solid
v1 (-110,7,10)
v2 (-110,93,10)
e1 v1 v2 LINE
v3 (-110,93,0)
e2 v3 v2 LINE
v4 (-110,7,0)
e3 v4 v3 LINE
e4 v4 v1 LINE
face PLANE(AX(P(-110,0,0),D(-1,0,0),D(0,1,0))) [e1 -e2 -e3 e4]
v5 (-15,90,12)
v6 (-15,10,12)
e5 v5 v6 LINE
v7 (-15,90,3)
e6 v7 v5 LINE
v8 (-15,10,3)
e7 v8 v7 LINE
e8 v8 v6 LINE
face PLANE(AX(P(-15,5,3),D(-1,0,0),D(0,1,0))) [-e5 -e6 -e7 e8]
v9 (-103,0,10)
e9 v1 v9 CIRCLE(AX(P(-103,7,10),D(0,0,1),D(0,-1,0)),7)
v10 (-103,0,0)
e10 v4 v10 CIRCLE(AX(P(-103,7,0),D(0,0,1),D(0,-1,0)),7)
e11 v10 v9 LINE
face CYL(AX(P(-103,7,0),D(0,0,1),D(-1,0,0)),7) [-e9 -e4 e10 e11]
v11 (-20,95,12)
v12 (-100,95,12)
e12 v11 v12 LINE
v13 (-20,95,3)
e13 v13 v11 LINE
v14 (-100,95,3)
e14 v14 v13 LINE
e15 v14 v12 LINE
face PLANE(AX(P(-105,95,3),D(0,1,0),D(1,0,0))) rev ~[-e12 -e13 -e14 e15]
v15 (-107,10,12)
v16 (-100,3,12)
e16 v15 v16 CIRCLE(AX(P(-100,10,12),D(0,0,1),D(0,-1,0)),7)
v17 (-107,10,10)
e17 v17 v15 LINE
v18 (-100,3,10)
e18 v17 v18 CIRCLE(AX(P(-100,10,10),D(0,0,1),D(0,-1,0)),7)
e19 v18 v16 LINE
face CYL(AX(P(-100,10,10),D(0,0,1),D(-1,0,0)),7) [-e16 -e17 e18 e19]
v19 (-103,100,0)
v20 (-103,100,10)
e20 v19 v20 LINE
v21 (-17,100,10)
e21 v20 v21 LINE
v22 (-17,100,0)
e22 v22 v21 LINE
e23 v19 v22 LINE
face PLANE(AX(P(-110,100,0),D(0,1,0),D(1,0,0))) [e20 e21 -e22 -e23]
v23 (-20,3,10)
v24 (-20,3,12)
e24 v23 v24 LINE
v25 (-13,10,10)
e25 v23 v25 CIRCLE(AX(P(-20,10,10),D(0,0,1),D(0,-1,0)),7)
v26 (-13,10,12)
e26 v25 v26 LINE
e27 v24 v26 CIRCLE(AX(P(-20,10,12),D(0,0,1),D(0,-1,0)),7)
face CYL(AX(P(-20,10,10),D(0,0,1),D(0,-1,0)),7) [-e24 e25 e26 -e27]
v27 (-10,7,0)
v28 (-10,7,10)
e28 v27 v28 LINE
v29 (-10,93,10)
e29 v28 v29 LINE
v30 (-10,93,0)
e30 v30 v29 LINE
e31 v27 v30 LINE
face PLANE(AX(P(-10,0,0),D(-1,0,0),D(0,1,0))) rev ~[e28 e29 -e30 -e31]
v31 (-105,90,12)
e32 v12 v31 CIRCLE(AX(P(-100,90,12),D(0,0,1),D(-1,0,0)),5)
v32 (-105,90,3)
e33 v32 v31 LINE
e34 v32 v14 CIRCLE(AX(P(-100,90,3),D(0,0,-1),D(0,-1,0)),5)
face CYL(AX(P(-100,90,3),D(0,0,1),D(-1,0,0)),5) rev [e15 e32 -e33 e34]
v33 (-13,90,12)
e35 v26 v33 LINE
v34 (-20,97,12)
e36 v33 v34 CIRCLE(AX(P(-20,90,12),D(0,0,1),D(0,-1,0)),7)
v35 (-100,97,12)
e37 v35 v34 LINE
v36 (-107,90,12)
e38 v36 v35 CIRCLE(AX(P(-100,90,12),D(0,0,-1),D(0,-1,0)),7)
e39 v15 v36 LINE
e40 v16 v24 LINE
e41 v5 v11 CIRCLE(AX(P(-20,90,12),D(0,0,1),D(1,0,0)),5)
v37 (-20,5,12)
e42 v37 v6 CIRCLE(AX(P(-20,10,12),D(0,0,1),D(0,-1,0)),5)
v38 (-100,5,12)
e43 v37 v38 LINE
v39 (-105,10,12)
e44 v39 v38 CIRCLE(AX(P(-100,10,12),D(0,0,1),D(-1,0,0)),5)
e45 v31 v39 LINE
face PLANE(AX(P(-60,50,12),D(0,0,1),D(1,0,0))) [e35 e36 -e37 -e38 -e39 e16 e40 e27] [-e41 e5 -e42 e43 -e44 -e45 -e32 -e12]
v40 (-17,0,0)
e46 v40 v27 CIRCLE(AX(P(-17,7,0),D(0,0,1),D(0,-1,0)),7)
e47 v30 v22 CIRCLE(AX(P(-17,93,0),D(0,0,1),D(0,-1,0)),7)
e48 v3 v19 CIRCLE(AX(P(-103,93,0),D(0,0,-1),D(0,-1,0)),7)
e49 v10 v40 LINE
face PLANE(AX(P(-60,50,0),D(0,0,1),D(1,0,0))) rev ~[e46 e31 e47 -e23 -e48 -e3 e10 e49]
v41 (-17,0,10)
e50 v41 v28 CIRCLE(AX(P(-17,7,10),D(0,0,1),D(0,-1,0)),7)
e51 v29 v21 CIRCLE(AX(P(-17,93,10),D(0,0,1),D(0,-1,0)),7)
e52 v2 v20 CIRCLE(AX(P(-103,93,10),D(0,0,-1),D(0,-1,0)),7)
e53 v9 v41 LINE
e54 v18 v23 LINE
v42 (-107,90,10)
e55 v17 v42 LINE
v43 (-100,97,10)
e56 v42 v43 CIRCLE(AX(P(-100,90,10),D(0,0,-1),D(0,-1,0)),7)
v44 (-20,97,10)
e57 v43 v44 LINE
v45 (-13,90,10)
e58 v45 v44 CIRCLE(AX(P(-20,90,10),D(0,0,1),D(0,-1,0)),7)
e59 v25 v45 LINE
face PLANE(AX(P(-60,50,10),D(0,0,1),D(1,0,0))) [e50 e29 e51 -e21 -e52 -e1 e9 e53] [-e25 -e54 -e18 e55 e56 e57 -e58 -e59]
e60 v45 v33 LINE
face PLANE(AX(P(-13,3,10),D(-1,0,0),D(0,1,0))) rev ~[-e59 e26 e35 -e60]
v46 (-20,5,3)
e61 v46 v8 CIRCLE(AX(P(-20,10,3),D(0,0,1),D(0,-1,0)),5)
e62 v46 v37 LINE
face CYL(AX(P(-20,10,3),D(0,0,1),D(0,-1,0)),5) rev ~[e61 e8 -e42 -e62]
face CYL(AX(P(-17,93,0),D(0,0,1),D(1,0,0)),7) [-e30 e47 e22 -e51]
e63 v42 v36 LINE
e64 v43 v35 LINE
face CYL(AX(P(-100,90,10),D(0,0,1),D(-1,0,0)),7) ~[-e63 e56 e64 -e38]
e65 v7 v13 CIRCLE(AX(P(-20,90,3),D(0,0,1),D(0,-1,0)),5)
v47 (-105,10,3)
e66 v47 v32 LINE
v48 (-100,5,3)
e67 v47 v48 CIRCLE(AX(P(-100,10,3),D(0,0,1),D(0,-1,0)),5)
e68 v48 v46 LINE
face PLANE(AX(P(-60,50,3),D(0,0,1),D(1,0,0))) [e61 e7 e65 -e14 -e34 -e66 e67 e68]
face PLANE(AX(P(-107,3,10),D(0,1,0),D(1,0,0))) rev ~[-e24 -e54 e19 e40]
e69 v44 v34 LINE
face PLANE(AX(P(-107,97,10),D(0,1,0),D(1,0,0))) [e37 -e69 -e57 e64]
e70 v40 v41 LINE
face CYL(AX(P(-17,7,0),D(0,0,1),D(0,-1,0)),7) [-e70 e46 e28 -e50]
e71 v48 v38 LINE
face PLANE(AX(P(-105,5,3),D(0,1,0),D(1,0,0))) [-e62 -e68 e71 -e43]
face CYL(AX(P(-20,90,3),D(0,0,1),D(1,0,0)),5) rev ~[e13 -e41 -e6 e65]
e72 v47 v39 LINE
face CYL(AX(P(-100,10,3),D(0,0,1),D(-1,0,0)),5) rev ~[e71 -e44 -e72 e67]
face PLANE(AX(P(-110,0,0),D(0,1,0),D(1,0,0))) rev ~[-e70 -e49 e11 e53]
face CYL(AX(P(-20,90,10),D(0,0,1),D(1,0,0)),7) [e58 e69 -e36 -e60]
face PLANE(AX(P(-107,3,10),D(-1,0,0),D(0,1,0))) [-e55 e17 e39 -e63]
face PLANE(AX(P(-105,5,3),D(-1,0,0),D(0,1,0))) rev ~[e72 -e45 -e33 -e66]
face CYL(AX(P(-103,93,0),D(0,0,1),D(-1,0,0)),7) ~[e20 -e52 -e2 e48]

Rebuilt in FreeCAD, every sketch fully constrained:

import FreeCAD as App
import Part
import Sketcher


def edges_at(feature, points):
    """Names of the edges that pass closest to the given points."""
    edges = feature.Shape.Edges
    near = lambda p: min(range(len(edges)), key=lambda i: edges[i].distToShape(Part.Vertex(*p))[0])
    return sorted({f"Edge{near(p) + 1}" for p in points})

doc = App.newDocument("Part")
body = doc.addObject("PartDesign::Body", "Body")

# Sketch on XY plane
sketch1 = body.newObject("Sketcher::SketchObject", "Sketch")
sketch1.AttachmentSupport = (doc.getObject("XY_Plane"), [""])
sketch1.MapMode = "FlatFace"
sketch1.AttachmentOffset = App.Placement(App.Vector(0, 0, 3), App.Rotation())
sketch1.addGeometry([
    Part.LineSegment(App.Vector(5, 95, 0), App.Vector(5, 5, 0)),
    Part.LineSegment(App.Vector(5, 5, 0), App.Vector(95, 5, 0)),
    Part.LineSegment(App.Vector(95, 5, 0), App.Vector(95, 95, 0)),
    Part.LineSegment(App.Vector(95, 95, 0), App.Vector(5, 95, 0)),
], False)
sketch1.addConstraint([
    Sketcher.Constraint("Coincident", 0, 2, 1, 1),
    Sketcher.Constraint("Coincident", 1, 2, 2, 1),
    Sketcher.Constraint("Coincident", 2, 2, 3, 1),
    Sketcher.Constraint("Coincident", 3, 2, 0, 1),
    Sketcher.Constraint("Vertical", 0),
    Sketcher.Constraint("Horizontal", 1),
    Sketcher.Constraint("Vertical", 2),
    Sketcher.Constraint("Horizontal", 3),
    Sketcher.Constraint("Equal", 3, 0),
    Sketcher.Constraint("DistanceX", 1, 1, 1, 2, 90.0),
    Sketcher.Constraint("DistanceX", -1, 1, 0, 2, 5.0),
    Sketcher.Constraint("DistanceY", -1, 1, 0, 2, 5.0),
])
pad1 = body.newObject("PartDesign::Pad", "Pad")
pad1.Profile = sketch1
pad1.Length = 10
doc.recompute()

fillet = body.newObject("PartDesign::Fillet", "Fillet")
fillet.Base = (pad1, edges_at(pad1, [
    (5, 5, 8),
    (5, 95, 8),
    (95, 5, 8),
    (95, 95, 8),
]))
fillet.Radius = 5
body2 = doc.addObject("PartDesign::Body", "Body001")

# Sketch on XY plane
sketch2 = body2.newObject("Sketcher::SketchObject", "Sketch001")
sketch2.AttachmentSupport = (doc.getObject("XY_Plane001"), [""])
sketch2.MapMode = "FlatFace"
sketch2.addGeometry([
    Part.LineSegment(App.Vector(0, 100, 0), App.Vector(0, 0, 0)),
    Part.LineSegment(App.Vector(0, 0, 0), App.Vector(100, 0, 0)),
    Part.LineSegment(App.Vector(100, 0, 0), App.Vector(100, 100, 0)),
    Part.LineSegment(App.Vector(100, 100, 0), App.Vector(0, 100, 0)),
], False)
sketch2.addConstraint([
    Sketcher.Constraint("Coincident", 0, 2, 1, 1),
    Sketcher.Constraint("Coincident", 1, 2, 2, 1),
    Sketcher.Constraint("Coincident", 2, 2, 3, 1),
    Sketcher.Constraint("Coincident", 3, 2, 0, 1),
    Sketcher.Constraint("Vertical", 0),
    Sketcher.Constraint("Horizontal", 1),
    Sketcher.Constraint("Vertical", 2),
    Sketcher.Constraint("Horizontal", 3),
    Sketcher.Constraint("Coincident", 0, 2, -1, 1),
    Sketcher.Constraint("Equal", 3, 0),
    Sketcher.Constraint("DistanceX", 1, 1, 1, 2, 100.0),
])
pad2 = body2.newObject("PartDesign::Pad", "Pad001")
pad2.Profile = sketch2
pad2.Length = 10
doc.recompute()

fillet2 = body2.newObject("PartDesign::Fillet", "Fillet001")
fillet2.Base = (pad2, edges_at(pad2, [
    (0, 0, 5),
    (0, 100, 5),
    (100, 0, 5),
    (100, 100, 5),
]))
fillet2.Radius = 7
body3 = doc.addObject("PartDesign::Body", "Body002")

# Sketch on XY plane
sketch3 = body3.newObject("Sketcher::SketchObject", "Sketch002")
sketch3.AttachmentSupport = (doc.getObject("XY_Plane002"), [""])
sketch3.MapMode = "FlatFace"
sketch3.AttachmentOffset = App.Placement(App.Vector(0, 0, 10), App.Rotation())
sketch3.addGeometry([
    Part.LineSegment(App.Vector(3, 97, 0), App.Vector(3, 3, 0)),
    Part.LineSegment(App.Vector(3, 3, 0), App.Vector(97, 3, 0)),
    Part.LineSegment(App.Vector(97, 3, 0), App.Vector(97, 97, 0)),
    Part.LineSegment(App.Vector(97, 97, 0), App.Vector(3, 97, 0)),
], False)
sketch3.addConstraint([
    Sketcher.Constraint("Coincident", 0, 2, 1, 1),
    Sketcher.Constraint("Coincident", 1, 2, 2, 1),
    Sketcher.Constraint("Coincident", 2, 2, 3, 1),
    Sketcher.Constraint("Coincident", 3, 2, 0, 1),
    Sketcher.Constraint("Vertical", 0),
    Sketcher.Constraint("Horizontal", 1),
    Sketcher.Constraint("Vertical", 2),
    Sketcher.Constraint("Horizontal", 3),
    Sketcher.Constraint("Equal", 3, 0),
    Sketcher.Constraint("DistanceX", 1, 1, 1, 2, 94.0),
    Sketcher.Constraint("DistanceX", -1, 1, 0, 2, 3.0),
    Sketcher.Constraint("DistanceY", -1, 1, 0, 2, 3.0),
])
pad3 = body3.newObject("PartDesign::Pad", "Pad002")
pad3.Profile = sketch3
pad3.Length = 2
doc.recompute()

fillet3 = body3.newObject("PartDesign::Fillet", "Fillet002")
fillet3.Base = (pad3, edges_at(pad3, [
    (3, 3, 11),
    (3, 97, 11),
    (97, 3, 11),
    (97, 97, 11),
]))
fillet3.Radius = 7
doc.recompute()

boolean = body3.newObject("PartDesign::Boolean", "Boolean")
boolean.Type = "Fuse"
boolean.addObjects([body2])
doc.recompute()

boolean2 = body3.newObject("PartDesign::Boolean", "Boolean001")
boolean2.Type = "Cut"
boolean2.addObjects([body])
body4 = doc.addObject("PartDesign::Body", "Body003")
doc.recompute()

body3.Placement = App.Placement(App.Vector(-110, 0, 0), App.Rotation(App.Vector(0, 0, 1), 0))
boolean3 = body4.newObject("PartDesign::Boolean", "Boolean002")
boolean3.Type = "Fuse"
boolean3.addObjects([body3])

doc.recompute()
